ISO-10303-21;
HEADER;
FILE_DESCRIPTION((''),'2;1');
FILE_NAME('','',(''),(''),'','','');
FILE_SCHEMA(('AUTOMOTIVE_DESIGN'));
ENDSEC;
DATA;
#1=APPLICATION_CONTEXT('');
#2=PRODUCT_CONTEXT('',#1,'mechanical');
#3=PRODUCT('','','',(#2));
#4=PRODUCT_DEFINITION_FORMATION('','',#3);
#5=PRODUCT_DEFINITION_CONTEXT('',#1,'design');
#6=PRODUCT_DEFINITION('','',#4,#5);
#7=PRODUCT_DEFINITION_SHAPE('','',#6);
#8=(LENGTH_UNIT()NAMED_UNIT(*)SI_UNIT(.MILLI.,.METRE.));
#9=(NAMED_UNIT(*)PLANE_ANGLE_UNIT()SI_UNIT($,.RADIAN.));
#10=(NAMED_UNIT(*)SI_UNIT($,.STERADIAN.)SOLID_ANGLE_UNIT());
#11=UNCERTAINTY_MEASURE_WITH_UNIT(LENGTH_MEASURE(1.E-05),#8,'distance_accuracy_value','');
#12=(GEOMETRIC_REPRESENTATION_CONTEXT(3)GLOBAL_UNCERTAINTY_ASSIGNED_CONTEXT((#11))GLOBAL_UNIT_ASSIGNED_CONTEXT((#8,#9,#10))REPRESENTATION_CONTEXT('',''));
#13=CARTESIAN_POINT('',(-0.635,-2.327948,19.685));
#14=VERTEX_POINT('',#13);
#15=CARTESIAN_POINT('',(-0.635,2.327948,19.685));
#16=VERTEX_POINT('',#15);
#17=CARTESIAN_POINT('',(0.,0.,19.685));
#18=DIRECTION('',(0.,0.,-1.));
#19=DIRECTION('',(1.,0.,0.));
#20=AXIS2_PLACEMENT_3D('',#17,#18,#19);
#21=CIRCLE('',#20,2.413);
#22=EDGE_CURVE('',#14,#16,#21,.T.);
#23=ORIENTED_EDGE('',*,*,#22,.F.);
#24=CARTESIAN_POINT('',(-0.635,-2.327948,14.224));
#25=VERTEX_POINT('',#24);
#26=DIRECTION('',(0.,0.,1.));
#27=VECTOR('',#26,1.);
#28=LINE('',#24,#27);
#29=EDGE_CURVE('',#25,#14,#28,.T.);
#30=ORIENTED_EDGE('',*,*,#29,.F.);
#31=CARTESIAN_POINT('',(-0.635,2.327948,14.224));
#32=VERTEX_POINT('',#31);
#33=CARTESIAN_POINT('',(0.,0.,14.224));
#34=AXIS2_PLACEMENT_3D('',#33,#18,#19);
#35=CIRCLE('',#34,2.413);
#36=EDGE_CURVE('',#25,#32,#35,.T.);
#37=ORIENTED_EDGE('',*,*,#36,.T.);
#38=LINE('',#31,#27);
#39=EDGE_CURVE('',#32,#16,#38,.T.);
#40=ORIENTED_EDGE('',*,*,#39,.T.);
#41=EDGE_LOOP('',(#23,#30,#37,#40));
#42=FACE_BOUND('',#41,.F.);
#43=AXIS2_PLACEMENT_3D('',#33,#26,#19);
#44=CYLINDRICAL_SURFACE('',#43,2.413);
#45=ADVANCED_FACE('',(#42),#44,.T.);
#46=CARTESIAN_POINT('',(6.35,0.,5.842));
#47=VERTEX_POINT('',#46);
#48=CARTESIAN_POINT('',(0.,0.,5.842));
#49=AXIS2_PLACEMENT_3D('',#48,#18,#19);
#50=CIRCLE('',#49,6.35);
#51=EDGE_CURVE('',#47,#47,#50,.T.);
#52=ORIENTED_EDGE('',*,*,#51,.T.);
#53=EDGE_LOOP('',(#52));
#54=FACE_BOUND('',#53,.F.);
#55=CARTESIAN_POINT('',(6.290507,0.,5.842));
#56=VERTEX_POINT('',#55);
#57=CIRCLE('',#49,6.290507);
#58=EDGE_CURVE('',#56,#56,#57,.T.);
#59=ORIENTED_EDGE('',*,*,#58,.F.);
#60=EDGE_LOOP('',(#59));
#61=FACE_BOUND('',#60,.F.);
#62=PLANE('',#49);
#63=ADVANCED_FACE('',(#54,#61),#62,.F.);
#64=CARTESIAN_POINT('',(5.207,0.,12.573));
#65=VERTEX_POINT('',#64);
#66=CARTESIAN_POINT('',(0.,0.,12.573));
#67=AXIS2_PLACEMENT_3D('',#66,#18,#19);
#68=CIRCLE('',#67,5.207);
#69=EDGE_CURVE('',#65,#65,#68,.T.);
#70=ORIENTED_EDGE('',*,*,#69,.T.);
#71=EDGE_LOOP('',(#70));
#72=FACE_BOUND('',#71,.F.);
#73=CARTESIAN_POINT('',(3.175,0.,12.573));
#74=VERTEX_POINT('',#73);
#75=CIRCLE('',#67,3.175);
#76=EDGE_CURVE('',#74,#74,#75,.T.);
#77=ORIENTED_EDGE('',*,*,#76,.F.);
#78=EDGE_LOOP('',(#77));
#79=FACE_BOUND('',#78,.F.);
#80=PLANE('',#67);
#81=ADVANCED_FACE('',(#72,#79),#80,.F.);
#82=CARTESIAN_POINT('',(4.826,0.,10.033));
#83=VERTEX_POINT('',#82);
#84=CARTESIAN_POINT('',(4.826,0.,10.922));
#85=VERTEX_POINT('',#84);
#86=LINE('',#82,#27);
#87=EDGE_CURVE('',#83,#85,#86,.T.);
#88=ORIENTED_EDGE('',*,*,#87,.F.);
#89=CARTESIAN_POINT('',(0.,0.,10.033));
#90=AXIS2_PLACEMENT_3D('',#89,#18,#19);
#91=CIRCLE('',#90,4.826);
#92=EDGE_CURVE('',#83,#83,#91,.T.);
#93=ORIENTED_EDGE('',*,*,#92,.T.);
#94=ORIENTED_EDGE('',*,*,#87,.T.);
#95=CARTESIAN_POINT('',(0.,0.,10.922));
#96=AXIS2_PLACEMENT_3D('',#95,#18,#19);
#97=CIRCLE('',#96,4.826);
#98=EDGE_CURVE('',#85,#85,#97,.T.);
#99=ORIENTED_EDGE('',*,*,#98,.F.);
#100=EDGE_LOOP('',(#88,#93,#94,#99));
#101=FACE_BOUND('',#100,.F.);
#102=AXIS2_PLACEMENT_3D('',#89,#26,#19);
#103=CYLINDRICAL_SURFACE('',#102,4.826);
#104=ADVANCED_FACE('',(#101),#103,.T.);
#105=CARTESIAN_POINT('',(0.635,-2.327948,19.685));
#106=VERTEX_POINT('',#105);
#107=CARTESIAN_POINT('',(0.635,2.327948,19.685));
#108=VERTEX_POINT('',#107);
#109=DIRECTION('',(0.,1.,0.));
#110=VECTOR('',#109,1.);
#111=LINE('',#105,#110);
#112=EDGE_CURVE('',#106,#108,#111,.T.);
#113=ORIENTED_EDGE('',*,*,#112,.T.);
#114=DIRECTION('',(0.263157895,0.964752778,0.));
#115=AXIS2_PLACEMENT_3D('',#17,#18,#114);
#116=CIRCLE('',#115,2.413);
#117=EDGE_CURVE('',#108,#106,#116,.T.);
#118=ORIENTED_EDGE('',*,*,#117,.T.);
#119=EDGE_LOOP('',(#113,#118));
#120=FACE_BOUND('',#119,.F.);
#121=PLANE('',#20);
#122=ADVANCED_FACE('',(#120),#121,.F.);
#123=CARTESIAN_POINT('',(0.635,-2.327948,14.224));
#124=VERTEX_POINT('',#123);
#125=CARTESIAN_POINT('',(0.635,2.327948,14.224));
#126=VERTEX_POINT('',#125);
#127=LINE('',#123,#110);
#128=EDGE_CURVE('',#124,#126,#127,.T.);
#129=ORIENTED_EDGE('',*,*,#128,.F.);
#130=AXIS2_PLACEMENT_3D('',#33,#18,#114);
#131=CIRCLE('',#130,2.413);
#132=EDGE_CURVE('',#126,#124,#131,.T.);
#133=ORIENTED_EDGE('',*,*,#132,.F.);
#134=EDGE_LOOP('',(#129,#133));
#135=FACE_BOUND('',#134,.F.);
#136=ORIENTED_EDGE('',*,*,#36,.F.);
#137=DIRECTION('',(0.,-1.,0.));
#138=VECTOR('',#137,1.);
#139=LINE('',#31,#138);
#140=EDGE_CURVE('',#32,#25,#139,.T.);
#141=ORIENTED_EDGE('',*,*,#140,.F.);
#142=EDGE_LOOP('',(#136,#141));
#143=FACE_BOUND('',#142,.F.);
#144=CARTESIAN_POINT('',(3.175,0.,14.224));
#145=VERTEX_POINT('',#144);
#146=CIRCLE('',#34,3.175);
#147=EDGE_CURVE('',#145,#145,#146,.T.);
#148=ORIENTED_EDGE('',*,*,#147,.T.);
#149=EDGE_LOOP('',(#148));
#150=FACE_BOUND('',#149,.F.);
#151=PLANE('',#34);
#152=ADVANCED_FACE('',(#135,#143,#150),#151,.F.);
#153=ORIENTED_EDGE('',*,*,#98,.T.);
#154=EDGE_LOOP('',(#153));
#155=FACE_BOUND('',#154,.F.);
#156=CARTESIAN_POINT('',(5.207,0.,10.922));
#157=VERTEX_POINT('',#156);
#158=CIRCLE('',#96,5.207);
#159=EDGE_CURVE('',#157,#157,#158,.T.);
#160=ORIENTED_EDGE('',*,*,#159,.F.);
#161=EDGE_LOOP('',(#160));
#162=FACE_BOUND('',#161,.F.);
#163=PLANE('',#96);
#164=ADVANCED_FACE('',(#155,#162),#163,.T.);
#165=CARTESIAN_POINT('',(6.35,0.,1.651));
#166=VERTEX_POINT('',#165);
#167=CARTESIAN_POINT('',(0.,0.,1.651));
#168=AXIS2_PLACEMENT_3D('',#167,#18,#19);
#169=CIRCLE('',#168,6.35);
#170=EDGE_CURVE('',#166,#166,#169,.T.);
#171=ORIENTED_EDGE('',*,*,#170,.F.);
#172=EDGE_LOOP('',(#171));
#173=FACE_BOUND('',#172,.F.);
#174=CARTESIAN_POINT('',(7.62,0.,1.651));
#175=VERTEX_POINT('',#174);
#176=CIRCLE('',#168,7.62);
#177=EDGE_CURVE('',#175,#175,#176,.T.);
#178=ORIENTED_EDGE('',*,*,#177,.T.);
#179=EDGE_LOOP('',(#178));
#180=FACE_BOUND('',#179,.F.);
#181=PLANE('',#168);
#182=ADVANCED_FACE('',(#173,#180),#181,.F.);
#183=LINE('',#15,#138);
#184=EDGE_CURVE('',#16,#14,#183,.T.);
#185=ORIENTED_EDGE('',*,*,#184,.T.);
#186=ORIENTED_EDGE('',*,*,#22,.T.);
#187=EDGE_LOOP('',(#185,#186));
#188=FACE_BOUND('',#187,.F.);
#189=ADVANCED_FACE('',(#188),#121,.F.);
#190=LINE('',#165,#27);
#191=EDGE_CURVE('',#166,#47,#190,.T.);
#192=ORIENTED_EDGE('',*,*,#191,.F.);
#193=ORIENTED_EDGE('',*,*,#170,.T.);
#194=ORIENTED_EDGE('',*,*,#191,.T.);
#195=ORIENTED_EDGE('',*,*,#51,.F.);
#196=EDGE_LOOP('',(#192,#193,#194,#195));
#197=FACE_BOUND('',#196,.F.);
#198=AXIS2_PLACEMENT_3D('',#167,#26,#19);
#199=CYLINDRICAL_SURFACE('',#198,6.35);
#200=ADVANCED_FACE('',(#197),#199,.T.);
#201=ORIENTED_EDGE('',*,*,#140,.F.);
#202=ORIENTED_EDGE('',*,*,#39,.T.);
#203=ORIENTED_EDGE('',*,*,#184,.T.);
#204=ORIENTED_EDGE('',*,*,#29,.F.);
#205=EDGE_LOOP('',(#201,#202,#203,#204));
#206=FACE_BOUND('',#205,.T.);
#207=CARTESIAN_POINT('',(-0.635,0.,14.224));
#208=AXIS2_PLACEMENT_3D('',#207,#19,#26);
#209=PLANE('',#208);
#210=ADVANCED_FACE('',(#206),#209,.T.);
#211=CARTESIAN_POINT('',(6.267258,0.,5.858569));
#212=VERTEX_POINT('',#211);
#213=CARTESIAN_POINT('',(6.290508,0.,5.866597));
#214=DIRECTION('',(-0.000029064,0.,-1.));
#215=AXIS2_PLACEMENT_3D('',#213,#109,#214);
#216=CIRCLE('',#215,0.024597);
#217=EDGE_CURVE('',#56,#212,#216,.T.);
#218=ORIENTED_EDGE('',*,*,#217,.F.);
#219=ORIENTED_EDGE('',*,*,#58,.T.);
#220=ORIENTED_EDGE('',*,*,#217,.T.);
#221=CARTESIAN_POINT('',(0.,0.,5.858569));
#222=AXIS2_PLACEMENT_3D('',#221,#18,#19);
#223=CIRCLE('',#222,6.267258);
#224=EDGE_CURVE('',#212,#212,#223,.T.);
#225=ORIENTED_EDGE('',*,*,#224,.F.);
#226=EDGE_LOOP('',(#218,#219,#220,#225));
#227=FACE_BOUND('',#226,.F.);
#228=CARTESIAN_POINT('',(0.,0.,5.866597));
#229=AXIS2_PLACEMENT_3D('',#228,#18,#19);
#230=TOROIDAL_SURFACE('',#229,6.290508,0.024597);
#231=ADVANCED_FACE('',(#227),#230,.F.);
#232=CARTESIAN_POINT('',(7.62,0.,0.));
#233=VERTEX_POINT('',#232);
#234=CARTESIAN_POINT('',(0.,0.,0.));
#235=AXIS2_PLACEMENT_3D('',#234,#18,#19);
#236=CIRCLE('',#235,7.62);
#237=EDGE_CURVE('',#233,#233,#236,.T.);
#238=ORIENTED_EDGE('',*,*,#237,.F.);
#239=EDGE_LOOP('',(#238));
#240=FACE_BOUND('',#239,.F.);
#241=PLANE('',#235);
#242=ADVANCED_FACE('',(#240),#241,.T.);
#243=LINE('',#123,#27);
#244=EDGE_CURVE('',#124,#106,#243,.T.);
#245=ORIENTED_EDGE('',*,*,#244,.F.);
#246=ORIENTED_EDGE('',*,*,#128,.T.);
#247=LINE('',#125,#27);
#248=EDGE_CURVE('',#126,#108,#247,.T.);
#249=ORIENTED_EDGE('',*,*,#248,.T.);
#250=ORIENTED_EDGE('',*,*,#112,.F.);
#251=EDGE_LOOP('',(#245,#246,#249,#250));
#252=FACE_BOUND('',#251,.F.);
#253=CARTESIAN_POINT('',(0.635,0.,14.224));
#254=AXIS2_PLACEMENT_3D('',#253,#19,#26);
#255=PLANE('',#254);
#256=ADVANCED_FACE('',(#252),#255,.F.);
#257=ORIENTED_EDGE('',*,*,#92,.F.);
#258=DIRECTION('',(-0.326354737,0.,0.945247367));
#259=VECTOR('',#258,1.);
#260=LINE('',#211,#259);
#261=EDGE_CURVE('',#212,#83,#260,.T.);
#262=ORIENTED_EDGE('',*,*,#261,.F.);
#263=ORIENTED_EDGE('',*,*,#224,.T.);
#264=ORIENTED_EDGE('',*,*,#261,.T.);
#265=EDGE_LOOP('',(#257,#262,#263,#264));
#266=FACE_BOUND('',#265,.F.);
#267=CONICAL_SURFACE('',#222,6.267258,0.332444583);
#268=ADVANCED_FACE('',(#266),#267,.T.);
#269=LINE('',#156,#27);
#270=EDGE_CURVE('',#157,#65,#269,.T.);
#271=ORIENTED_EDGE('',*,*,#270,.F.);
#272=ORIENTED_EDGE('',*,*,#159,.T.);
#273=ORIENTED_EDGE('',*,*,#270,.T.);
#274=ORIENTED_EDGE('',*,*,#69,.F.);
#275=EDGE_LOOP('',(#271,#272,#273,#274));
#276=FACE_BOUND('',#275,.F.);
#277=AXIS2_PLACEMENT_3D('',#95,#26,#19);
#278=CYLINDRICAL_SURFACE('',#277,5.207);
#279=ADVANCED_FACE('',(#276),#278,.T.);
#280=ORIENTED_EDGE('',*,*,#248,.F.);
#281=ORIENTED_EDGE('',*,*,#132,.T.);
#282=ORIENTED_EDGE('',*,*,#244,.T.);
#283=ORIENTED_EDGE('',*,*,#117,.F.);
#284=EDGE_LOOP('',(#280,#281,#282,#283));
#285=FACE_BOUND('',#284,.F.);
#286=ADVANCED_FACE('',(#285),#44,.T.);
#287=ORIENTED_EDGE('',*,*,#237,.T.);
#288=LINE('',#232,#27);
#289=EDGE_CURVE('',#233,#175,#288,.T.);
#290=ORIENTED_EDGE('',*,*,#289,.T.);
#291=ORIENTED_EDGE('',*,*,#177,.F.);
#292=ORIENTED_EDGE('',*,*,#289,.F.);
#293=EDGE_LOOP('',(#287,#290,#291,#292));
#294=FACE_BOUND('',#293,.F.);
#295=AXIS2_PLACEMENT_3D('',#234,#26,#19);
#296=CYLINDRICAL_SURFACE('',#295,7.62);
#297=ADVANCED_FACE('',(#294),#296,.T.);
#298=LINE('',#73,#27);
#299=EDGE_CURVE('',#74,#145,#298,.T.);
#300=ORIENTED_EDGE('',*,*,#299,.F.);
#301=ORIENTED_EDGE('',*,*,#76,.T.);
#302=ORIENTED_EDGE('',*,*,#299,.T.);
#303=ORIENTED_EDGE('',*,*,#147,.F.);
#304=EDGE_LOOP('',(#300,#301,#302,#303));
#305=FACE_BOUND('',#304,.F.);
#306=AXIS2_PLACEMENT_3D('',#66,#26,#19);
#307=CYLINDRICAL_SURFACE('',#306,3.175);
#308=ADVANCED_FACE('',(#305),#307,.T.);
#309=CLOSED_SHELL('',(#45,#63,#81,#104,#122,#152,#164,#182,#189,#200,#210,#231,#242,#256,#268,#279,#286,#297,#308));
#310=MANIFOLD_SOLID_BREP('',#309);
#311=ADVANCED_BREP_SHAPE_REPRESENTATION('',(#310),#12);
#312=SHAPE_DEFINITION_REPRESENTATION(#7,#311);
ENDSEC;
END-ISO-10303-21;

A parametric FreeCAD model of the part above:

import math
import FreeCAD as App
import Part
import Sketcher

V = App.Vector
Q = App.Units.Quantity

doc = App.newDocument("Part")
body = doc.addObject("PartDesign::Body", "Body")

sketch1 = body.newObject("Sketcher::SketchObject", "Sketch")
sketch1.AttachmentSupport = (doc.getObject("XZ_Plane"), [""])
sketch1.MapMode = "FlatFace"
sketch1.addGeometry(Part.LineSegment(V(0, 0, 0), V(7.62, 0, 0)), False)
sketch1.addGeometry(Part.LineSegment(V(7.62, 0, 0), V(7.62, 1.651, 0)), False)
sketch1.addGeometry(Part.LineSegment(V(7.62, 1.651, 0), V(6.35, 1.651, 0)), False)
sketch1.addGeometry(Part.LineSegment(V(6.35, 1.651, 0), V(6.35, 5.842, 0)), False)
sketch1.addGeometry(Part.LineSegment(V(6.35, 5.842, 0), V(6.291, 5.842, 0)), False)
sketch1.addGeometry(Part.ArcOfCircle(Part.Circle(V(6.291, 5.867, 0), V(0, 0, 1), 0.025), math.radians(-161), math.radians(-90)), False)
sketch1.addGeometry(Part.LineSegment(V(6.267, 5.859, 0), V(4.826, 10.033, 0)), False)
sketch1.addGeometry(Part.LineSegment(V(4.826, 10.033, 0), V(4.826, 10.922, 0)), False)
sketch1.addGeometry(Part.LineSegment(V(4.826, 10.922, 0), V(5.207, 10.922, 0)), False)
sketch1.addGeometry(Part.LineSegment(V(5.207, 10.922, 0), V(5.207, 12.573, 0)), False)
sketch1.addGeometry(Part.LineSegment(V(5.207, 12.573, 0), V(3.175, 12.573, 0)), False)
sketch1.addGeometry(Part.LineSegment(V(3.175, 12.573, 0), V(3.175, 14.224, 0)), False)
sketch1.addGeometry(Part.LineSegment(V(3.175, 14.224, 0), V(2.413, 14.224, 0)), False)
sketch1.addGeometry(Part.LineSegment(V(2.413, 14.224, 0), V(2.413, 19.685, 0)), False)
sketch1.addGeometry(Part.LineSegment(V(2.413, 19.685, 0), V(0.635, 19.685, 0)), False)
sketch1.addGeometry(Part.LineSegment(V(0.635, 19.685, 0), V(0.635, 14.224, 0)), False)
sketch1.addGeometry(Part.LineSegment(V(0.635, 14.224, 0), V(0, 14.224, 0)), False)
sketch1.addGeometry(Part.LineSegment(V(0, 14.224, 0), V(0, 0, 0)), False)
sketch1.addConstraint(Sketcher.Constraint("Coincident", 0, 2, 1, 1))
sketch1.addConstraint(Sketcher.Constraint("Coincident", 1, 2, 2, 1))
sketch1.addConstraint(Sketcher.Constraint("Coincident", 2, 2, 3, 1))
sketch1.addConstraint(Sketcher.Constraint("Coincident", 3, 2, 4, 1))
sketch1.addConstraint(Sketcher.Constraint("Coincident", 4, 2, 5, 2))
sketch1.addConstraint(Sketcher.Constraint("Coincident", 5, 1, 6, 1))
sketch1.addConstraint(Sketcher.Constraint("Coincident", 6, 2, 7, 1))
sketch1.addConstraint(Sketcher.Constraint("Coincident", 7, 2, 8, 1))
sketch1.addConstraint(Sketcher.Constraint("Coincident", 8, 2, 9, 1))
sketch1.addConstraint(Sketcher.Constraint("Coincident", 9, 2, 10, 1))
sketch1.addConstraint(Sketcher.Constraint("Coincident", 10, 2, 11, 1))
sketch1.addConstraint(Sketcher.Constraint("Coincident", 11, 2, 12, 1))
sketch1.addConstraint(Sketcher.Constraint("Coincident", 12, 2, 13, 1))
sketch1.addConstraint(Sketcher.Constraint("Coincident", 13, 2, 14, 1))
sketch1.addConstraint(Sketcher.Constraint("Coincident", 14, 2, 15, 1))
sketch1.addConstraint(Sketcher.Constraint("Coincident", 15, 2, 16, 1))
sketch1.addConstraint(Sketcher.Constraint("Coincident", 16, 2, 17, 1))
sketch1.addConstraint(Sketcher.Constraint("Coincident", 17, 2, 0, 1))
sketch1.addConstraint(Sketcher.Constraint("Horizontal", 0))
sketch1.addConstraint(Sketcher.Constraint("Vertical", 1))
sketch1.addConstraint(Sketcher.Constraint("Horizontal", 2))
sketch1.addConstraint(Sketcher.Constraint("Vertical", 3))
sketch1.addConstraint(Sketcher.Constraint("Horizontal", 4))
sketch1.addConstraint(Sketcher.Constraint("Vertical", 7))
sketch1.addConstraint(Sketcher.Constraint("Horizontal", 8))
sketch1.addConstraint(Sketcher.Constraint("Vertical", 9))
sketch1.addConstraint(Sketcher.Constraint("Horizontal", 10))
sketch1.addConstraint(Sketcher.Constraint("Vertical", 11))
sketch1.addConstraint(Sketcher.Constraint("Horizontal", 12))
sketch1.addConstraint(Sketcher.Constraint("Vertical", 13))
sketch1.addConstraint(Sketcher.Constraint("Horizontal", 14))
sketch1.addConstraint(Sketcher.Constraint("Vertical", 15))
sketch1.addConstraint(Sketcher.Constraint("Horizontal", 16))
sketch1.addConstraint(Sketcher.Constraint("Vertical", 17))
sketch1.addConstraint(Sketcher.Constraint("Coincident", 17, 2, -1, 1))
sketch1.addConstraint(Sketcher.Constraint("Horizontal", 12, 2, 15, 2))
sketch1.addConstraint(Sketcher.Constraint("Vertical", 5, 3, 4, 2))
sketch1.addConstraint(Sketcher.Constraint("Equal", 1, 9))
sketch1.addConstraint(Sketcher.Constraint("Equal", 9, 11))
sketch1.addConstraint(Sketcher.Constraint("DistanceX", 0, 1, 0, 2, Q("0.3 in")))
sketch1.addConstraint(Sketcher.Constraint("DistanceX", 2, 2, 2, 1, Q("0.05 in")))
sketch1.addConstraint(Sketcher.Constraint("DistanceX", 10, 2, 10, 1, Q("0.08 in")))
sketch1.addConstraint(Sketcher.Constraint("DistanceX", 12, 2, 12, 1, Q("0.03 in")))
sketch1.addConstraint(Sketcher.Constraint("DistanceX", 14, 2, 14, 1, Q("0.07 in")))
sketch1.addConstraint(Sketcher.Constraint("DistanceY", 17, 2, 17, 1, Q("0.56 in")))
sketch1.addConstraint(Sketcher.Constraint("DistanceY", 4, 2, 7, 2, Q("0.2 in")))
sketch1.addConstraint(Sketcher.Constraint("DistanceY", 6, 2, 9, 2, Q("0.1 in")))
sketch1.addConstraint(Sketcher.Constraint("DistanceX", 8, 1, 8, 2, Q("0.015 in")))
sketch1.addConstraint(Sketcher.Constraint("DistanceX", 16, 2, 16, 1, Q("0.025 in")))
sketch1.addConstraint(Sketcher.Constraint("DistanceY", 1, 1, 1, 2, Q("0.065 in")))
sketch1.addConstraint(Sketcher.Constraint("DistanceY", 13, 1, 13, 2, Q("0.215 in")))
sketch1.addConstraint(Sketcher.Constraint("Radius", 5, Q("0.024597 mm")))
sketch1.addConstraint(Sketcher.Constraint("Distance", 6, Q("4.416231 mm")))
sketch1.addConstraint(Sketcher.Constraint("DistanceX", 4, 2, 4, 1, Q("0.059493 mm")))
revolution = body.newObject("PartDesign::Revolution", "Revolution")
revolution.Profile = sketch1
revolution.ReferenceAxis = (sketch1, ["V_Axis"])
revolution.Angle = 360

sketch2 = body.newObject("Sketcher::SketchObject", "Sketch001")
sketch2.AttachmentSupport = (doc.getObject("XZ_Plane"), [""])
sketch2.MapMode = "FlatFace"
sketch2.addGeometry(Part.LineSegment(V(-0.6, 19.7, 0), V(-0.6, 14.2, 0)), False)
sketch2.addGeometry(Part.LineSegment(V(-0.6, 14.2, 0), V(0.6, 14.2, 0)), False)
sketch2.addGeometry(Part.LineSegment(V(0.6, 14.2, 0), V(0.6, 19.7, 0)), False)
sketch2.addGeometry(Part.LineSegment(V(0.6, 19.7, 0), V(-0.6, 19.7, 0)), False)
sketch2.addConstraint(Sketcher.Constraint("Coincident", 0, 2, 1, 1))
sketch2.addConstraint(Sketcher.Constraint("Coincident", 1, 2, 2, 1))
sketch2.addConstraint(Sketcher.Constraint("Coincident", 2, 2, 3, 1))
sketch2.addConstraint(Sketcher.Constraint("Coincident", 3, 2, 0, 1))
sketch2.addConstraint(Sketcher.Constraint("Vertical", 0))
sketch2.addConstraint(Sketcher.Constraint("Horizontal", 1))
sketch2.addConstraint(Sketcher.Constraint("Vertical", 2))
sketch2.addConstraint(Sketcher.Constraint("Horizontal", 3))
sketch2.addConstraint(Sketcher.Constraint("DistanceX", 1, 1, 1, 2, Q("0.05 in")))
sketch2.addConstraint(Sketcher.Constraint("DistanceY", 0, 2, 0, 1, Q("0.215 in")))
sketch2.addConstraint(Sketcher.Constraint("DistanceY", -1, 1, 0, 2, Q("0.56 in")))
sketch2.addConstraint(Sketcher.Constraint("DistanceX", 0, 2, -1, 1, Q("0.025 in")))
pocket1 = body.newObject("PartDesign::Pocket", "Pocket")
pocket1.Profile = sketch2
pocket1.Length = Q("0.25 in")
pocket1.Midplane = True

doc.recompute()
